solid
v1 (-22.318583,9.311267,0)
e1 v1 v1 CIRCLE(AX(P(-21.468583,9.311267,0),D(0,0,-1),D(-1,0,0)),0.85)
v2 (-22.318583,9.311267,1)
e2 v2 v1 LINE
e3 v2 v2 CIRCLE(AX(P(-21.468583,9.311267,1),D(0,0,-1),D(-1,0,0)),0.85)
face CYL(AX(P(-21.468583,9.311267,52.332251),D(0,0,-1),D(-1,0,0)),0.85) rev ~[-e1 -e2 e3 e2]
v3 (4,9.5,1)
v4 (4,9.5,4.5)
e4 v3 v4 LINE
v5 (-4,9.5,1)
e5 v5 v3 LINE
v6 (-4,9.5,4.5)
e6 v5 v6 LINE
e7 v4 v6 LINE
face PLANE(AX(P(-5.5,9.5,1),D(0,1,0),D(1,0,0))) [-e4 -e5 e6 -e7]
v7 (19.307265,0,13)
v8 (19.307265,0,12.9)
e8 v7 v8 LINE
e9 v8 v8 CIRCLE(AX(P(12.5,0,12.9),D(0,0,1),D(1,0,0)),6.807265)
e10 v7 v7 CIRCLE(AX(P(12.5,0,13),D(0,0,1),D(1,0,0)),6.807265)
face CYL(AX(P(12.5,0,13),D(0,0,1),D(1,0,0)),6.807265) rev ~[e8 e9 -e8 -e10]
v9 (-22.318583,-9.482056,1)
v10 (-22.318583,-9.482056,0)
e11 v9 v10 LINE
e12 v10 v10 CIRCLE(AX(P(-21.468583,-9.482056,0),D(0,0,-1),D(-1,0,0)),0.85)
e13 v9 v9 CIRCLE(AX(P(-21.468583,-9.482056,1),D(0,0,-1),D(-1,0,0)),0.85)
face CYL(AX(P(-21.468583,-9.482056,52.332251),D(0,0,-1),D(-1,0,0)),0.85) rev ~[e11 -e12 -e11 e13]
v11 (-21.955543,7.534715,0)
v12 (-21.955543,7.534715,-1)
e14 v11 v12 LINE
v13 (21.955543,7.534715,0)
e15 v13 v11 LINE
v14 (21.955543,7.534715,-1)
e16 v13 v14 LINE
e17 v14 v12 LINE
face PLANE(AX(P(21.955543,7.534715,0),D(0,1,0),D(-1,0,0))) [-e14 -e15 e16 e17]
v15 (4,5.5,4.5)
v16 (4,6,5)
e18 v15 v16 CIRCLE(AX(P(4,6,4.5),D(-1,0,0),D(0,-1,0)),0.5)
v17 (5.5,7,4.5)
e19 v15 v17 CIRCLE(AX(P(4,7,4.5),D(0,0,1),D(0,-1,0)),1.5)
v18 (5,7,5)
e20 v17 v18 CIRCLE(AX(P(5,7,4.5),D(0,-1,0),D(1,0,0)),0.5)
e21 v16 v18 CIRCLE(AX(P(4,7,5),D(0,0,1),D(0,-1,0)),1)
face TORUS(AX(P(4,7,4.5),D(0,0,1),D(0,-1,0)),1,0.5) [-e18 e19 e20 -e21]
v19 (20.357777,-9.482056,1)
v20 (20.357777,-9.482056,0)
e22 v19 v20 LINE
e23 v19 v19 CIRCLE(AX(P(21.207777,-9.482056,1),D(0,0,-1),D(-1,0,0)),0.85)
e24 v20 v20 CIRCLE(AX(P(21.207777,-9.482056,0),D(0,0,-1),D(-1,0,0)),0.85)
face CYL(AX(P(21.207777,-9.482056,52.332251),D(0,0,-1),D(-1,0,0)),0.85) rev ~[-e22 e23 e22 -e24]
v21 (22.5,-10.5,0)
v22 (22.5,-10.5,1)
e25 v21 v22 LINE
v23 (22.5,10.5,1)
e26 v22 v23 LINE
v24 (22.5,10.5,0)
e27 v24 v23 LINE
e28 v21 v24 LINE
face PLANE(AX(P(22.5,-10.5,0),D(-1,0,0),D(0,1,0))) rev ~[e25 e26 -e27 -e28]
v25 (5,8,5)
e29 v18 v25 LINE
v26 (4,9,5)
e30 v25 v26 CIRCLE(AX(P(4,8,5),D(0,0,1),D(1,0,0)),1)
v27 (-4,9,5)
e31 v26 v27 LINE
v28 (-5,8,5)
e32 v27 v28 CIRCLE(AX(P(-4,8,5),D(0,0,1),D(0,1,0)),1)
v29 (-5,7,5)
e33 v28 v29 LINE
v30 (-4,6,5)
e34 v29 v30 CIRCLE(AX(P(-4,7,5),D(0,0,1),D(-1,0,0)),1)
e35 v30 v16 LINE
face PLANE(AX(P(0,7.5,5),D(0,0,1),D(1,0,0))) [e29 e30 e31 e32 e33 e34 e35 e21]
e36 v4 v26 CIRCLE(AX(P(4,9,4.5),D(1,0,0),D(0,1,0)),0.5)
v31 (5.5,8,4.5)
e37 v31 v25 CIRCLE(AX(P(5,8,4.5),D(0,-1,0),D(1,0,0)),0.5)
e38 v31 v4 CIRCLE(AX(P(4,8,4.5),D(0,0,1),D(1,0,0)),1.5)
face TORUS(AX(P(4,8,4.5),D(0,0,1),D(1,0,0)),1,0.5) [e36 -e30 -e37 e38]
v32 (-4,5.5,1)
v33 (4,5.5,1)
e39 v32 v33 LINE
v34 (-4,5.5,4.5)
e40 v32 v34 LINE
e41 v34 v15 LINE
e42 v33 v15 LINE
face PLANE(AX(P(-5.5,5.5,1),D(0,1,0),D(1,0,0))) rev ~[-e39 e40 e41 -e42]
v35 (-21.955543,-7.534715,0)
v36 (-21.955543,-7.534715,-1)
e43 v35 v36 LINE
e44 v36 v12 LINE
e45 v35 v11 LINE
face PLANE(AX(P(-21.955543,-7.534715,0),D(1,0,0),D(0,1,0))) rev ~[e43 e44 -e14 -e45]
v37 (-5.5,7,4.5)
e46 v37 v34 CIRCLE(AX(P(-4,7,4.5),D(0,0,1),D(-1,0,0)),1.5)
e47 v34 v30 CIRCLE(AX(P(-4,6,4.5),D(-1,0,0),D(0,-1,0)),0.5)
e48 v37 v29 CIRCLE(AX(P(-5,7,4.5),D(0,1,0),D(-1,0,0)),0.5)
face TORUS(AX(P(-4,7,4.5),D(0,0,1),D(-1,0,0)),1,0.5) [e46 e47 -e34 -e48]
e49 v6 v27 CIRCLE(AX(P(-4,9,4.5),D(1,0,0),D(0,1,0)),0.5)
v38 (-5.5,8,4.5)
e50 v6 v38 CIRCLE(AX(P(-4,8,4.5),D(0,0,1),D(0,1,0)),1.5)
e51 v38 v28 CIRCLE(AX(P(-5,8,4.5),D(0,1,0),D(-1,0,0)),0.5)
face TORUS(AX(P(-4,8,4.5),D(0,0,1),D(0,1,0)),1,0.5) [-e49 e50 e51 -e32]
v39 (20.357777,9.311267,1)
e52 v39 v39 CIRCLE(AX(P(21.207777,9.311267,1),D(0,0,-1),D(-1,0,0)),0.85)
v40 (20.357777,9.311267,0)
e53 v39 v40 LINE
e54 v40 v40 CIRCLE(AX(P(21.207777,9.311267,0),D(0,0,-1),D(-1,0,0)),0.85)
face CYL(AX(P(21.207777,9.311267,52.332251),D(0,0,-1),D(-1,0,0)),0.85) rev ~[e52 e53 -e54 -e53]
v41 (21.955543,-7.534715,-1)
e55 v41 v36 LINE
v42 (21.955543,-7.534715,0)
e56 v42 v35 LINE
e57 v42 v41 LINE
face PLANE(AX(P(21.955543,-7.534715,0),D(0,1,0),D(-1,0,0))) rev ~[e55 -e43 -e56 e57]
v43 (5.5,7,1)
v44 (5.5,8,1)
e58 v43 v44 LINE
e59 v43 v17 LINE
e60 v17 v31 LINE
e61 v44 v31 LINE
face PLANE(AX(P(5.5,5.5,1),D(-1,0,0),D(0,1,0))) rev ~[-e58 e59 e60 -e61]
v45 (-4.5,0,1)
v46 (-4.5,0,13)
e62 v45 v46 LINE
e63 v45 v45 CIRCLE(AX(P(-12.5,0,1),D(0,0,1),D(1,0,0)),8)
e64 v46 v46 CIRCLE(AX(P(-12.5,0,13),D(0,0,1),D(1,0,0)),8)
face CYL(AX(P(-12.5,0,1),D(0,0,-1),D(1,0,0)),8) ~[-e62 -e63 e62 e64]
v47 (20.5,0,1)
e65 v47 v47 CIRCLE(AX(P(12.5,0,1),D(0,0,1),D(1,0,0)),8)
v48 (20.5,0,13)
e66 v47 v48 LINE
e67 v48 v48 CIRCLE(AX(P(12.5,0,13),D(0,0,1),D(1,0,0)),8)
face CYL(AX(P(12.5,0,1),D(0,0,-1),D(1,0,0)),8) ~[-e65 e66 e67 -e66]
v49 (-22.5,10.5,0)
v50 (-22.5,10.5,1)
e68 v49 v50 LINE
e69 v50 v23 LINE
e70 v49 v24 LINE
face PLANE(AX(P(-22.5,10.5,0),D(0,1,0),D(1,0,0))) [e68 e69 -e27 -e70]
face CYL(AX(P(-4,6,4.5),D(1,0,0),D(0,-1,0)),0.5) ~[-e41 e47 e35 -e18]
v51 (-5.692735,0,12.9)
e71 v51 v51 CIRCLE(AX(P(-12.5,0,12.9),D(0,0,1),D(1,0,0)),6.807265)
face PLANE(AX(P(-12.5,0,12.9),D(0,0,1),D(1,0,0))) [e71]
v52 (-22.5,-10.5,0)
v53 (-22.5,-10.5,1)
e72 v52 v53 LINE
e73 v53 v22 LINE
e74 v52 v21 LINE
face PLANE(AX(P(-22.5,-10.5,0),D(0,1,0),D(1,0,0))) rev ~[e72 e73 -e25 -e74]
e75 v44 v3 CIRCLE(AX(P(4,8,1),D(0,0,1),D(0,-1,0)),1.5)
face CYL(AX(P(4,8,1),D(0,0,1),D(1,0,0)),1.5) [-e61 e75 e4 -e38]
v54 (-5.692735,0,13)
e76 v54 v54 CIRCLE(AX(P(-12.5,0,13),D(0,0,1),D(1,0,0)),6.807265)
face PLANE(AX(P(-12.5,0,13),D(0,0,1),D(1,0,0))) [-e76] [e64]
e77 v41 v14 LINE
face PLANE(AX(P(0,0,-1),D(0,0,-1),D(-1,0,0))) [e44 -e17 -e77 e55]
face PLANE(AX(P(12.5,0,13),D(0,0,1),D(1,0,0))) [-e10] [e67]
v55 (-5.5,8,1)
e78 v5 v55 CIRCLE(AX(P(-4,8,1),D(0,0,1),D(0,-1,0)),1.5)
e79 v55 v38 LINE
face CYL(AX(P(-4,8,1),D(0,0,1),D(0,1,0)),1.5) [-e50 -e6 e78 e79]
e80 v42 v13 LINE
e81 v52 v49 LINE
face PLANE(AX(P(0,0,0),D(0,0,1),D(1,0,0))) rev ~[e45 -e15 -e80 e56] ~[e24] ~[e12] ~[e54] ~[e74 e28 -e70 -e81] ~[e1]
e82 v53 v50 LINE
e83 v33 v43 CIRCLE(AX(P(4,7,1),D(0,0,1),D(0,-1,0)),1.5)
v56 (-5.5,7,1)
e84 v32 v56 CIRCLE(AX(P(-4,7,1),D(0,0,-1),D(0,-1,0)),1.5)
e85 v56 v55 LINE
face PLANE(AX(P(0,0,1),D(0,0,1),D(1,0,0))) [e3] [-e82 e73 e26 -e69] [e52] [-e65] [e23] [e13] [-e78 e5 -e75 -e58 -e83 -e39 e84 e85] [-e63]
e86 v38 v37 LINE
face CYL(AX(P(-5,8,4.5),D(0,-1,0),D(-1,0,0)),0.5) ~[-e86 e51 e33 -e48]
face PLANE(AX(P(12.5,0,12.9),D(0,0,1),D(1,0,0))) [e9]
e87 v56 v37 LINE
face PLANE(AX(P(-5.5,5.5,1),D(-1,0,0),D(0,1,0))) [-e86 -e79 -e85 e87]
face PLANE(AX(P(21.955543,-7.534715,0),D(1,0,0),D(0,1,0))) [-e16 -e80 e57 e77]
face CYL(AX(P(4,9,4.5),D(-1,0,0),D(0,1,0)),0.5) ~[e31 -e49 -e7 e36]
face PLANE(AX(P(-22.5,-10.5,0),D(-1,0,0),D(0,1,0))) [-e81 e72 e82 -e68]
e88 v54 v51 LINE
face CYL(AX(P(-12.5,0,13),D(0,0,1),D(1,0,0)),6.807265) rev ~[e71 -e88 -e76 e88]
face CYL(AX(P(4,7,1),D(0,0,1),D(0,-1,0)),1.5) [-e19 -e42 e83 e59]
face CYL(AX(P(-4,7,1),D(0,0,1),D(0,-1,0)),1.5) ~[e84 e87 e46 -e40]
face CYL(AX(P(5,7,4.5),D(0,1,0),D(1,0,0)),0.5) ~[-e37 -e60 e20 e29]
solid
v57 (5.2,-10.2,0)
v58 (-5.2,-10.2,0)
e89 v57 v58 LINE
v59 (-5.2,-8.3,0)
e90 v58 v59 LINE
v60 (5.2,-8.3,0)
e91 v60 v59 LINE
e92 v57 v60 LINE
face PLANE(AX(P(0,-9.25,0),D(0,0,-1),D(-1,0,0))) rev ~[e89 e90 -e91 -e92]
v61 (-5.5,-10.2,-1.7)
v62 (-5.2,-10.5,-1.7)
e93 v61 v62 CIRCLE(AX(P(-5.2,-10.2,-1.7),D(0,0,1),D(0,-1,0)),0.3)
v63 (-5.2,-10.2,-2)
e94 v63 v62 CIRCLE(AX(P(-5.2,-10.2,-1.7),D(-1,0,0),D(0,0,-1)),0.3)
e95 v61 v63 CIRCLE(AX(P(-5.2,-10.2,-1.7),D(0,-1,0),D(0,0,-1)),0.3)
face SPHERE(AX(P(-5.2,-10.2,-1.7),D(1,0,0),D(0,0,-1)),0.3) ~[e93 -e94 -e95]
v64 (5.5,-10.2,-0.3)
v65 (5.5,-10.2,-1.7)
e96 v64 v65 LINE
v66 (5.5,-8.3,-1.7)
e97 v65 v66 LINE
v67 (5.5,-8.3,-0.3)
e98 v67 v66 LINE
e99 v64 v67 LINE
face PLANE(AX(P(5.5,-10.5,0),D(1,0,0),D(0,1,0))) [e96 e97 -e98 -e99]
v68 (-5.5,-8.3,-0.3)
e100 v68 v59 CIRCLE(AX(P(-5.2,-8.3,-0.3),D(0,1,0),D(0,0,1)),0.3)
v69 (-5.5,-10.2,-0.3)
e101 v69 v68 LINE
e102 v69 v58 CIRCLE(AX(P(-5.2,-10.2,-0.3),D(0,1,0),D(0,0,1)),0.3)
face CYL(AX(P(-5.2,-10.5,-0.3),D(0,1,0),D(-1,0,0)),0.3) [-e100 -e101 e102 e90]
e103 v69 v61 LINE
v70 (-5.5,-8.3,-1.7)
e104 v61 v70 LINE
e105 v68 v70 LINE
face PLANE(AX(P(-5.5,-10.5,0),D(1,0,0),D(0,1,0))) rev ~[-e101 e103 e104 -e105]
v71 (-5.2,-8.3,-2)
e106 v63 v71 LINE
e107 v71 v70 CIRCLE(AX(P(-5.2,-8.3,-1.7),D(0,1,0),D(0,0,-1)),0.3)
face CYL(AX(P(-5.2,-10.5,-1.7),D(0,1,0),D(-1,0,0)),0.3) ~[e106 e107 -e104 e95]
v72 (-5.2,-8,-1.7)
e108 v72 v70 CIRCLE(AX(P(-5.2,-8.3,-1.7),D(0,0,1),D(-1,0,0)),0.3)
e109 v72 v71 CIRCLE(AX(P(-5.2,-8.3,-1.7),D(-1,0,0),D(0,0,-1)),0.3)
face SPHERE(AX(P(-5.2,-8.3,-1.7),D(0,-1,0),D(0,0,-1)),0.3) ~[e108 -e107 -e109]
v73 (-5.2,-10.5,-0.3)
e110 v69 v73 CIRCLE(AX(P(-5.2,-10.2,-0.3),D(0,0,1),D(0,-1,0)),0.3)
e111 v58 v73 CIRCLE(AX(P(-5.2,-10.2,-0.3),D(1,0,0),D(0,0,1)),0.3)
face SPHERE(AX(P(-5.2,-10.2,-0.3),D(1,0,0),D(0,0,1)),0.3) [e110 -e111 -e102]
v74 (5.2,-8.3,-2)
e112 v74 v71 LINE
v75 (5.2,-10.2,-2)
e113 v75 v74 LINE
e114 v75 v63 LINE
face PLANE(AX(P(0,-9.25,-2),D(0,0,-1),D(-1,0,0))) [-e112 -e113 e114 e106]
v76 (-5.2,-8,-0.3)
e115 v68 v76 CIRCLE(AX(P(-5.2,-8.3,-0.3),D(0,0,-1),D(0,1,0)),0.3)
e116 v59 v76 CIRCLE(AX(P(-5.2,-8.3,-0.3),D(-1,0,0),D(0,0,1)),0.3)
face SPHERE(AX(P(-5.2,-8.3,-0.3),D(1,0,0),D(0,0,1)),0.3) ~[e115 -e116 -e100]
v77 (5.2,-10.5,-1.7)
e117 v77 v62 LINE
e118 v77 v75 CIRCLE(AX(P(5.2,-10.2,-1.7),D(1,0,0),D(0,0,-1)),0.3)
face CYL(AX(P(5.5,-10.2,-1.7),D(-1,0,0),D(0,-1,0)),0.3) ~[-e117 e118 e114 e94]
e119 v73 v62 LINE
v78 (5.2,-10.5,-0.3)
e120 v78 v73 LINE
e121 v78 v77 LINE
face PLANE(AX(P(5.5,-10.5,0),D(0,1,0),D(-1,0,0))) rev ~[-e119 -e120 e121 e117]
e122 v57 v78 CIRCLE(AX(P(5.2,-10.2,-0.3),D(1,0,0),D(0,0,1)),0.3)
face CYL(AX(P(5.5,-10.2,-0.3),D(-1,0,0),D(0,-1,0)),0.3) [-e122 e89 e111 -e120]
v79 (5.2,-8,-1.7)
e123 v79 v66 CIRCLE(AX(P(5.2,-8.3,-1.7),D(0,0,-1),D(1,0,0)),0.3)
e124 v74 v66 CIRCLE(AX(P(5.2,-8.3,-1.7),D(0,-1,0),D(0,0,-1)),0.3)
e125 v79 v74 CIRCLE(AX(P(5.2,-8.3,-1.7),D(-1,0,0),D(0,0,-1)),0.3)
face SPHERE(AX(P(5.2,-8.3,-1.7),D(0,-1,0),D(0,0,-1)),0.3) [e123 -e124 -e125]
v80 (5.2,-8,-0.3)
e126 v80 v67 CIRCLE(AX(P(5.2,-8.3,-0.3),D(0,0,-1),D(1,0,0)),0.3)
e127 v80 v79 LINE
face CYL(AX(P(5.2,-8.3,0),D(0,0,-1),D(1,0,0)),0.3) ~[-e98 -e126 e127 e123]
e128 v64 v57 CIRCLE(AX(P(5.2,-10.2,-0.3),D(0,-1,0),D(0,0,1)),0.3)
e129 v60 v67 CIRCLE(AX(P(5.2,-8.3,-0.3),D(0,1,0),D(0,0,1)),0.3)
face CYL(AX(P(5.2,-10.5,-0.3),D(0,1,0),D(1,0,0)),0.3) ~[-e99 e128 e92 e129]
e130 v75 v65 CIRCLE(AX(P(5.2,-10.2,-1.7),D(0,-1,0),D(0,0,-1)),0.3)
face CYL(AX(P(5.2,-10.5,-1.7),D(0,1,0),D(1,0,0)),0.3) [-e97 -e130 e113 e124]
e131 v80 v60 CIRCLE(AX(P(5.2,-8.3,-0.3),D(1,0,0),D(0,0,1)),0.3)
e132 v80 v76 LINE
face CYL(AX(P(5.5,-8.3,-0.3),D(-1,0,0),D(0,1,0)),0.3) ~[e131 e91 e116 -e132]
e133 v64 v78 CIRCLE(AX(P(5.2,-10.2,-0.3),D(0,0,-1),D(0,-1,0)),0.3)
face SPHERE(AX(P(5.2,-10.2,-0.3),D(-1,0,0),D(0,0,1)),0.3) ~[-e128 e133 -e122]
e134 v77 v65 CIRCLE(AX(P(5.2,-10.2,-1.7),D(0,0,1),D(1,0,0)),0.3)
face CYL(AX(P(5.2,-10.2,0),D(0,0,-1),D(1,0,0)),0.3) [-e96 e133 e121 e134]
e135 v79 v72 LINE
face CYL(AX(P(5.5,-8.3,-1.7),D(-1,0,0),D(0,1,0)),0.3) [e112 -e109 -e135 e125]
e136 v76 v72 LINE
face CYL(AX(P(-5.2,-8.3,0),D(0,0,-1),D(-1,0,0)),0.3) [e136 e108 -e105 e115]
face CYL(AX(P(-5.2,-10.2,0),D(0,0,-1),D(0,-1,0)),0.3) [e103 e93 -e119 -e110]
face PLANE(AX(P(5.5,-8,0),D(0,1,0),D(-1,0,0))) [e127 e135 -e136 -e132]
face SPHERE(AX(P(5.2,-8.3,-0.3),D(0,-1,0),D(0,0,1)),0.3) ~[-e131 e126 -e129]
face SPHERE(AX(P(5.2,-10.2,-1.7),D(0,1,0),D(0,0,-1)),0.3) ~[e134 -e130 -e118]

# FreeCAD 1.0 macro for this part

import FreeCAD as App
import Part
import Sketcher


def edges_at(feature, points):
    """Names of the edges that pass closest to the given points."""
    edges = feature.Shape.Edges
    near = lambda p: min(range(len(edges)), key=lambda i: edges[i].distToShape(Part.Vertex(*p))[0])
    return sorted({f"Edge{near(p) + 1}" for p in points})

doc = App.newDocument("Part")
body = doc.addObject("PartDesign::Body", "Body")

# Sketch on XY plane
sketch1 = body.newObject("Sketcher::SketchObject", "Sketch")
sketch1.AttachmentSupport = (doc.getObject("XY_Plane"), [""])
sketch1.MapMode = "FlatFace"
sketch1.addGeometry([
    Part.LineSegment(App.Vector(-22.5, 10.5, 0), App.Vector(-22.5, -10.5, 0)),
    Part.LineSegment(App.Vector(-22.5, -10.5, 0), App.Vector(22.5, -10.5, 0)),
    Part.LineSegment(App.Vector(22.5, -10.5, 0), App.Vector(22.5, 10.5, 0)),
    Part.LineSegment(App.Vector(22.5, 10.5, 0), App.Vector(-22.5, 10.5, 0)),
], False)
sketch1.addConstraint([
    Sketcher.Constraint("Coincident", 0, 2, 1, 1),
    Sketcher.Constraint("Coincident", 1, 2, 2, 1),
    Sketcher.Constraint("Coincident", 2, 2, 3, 1),
    Sketcher.Constraint("Coincident", 3, 2, 0, 1),
    Sketcher.Constraint("Vertical", 0),
    Sketcher.Constraint("Horizontal", 1),
    Sketcher.Constraint("Vertical", 2),
    Sketcher.Constraint("Horizontal", 3),
    Sketcher.Constraint("Symmetric", 0, 2, 2, 2, -1, 1),
    Sketcher.Constraint("DistanceX", 1, 1, 1, 2, 45.0),
    Sketcher.Constraint("DistanceY", 0, 2, 0, 1, 21.0),
])
pad1 = body.newObject("PartDesign::Pad", "Pad")
pad1.Profile = sketch1
pad1.Length = 1

# Sketch on XY plane
sketch2 = body.newObject("Sketcher::SketchObject", "Sketch001")
sketch2.AttachmentSupport = (doc.getObject("XY_Plane"), [""])
sketch2.MapMode = "FlatFace"
sketch2.AttachmentOffset = App.Placement(App.Vector(0, 0, 1), App.Rotation())
sketch2.addGeometry([
    Part.Circle(App.Vector(-12.5, 0, 0), App.Vector(0, 0, 1), 8),
    Part.Circle(App.Vector(12.5, 0, 0), App.Vector(0, 0, 1), 8),
], False)
sketch2.addConstraint([
    Sketcher.Constraint("Equal", 0, 1),
    Sketcher.Constraint("Symmetric", 0, 3, 1, 3, -1, 1),
    Sketcher.Constraint("PointOnObject", 0, 3, -1),
    Sketcher.Constraint("Diameter", 0, 16.0),
    Sketcher.Constraint("DistanceX", 0, 3, 1, 3, 25.0),
])
pad2 = body.newObject("PartDesign::Pad", "Pad001")
pad2.Profile = sketch2
pad2.Length = 12

# Sketch on XY plane
sketch3 = body.newObject("Sketcher::SketchObject", "Sketch002")
sketch3.AttachmentSupport = (doc.getObject("XY_Plane"), [""])
sketch3.MapMode = "FlatFace"
sketch3.AttachmentOffset = App.Placement(App.Vector(0, 0, 13), App.Rotation())
sketch3.addGeometry([
    Part.Circle(App.Vector(-12.5, 0, 0), App.Vector(0, 0, 1), 6.807265),
    Part.Circle(App.Vector(12.5, 0, 0), App.Vector(0, 0, 1), 6.807265),
], False)
sketch3.addConstraint([
    Sketcher.Constraint("Equal", 0, 1),
    Sketcher.Constraint("Symmetric", 0, 3, 1, 3, -1, 1),
    Sketcher.Constraint("PointOnObject", 0, 3, -1),
    Sketcher.Constraint("DistanceX", 0, 3, 1, 3, 25.0),
    Sketcher.Constraint("Diameter", 0, 13.61453),
])
pocket1 = body.newObject("PartDesign::Pocket", "Pocket")
pocket1.Profile = sketch3
pocket1.Length = 0.1

# Sketch on XY plane
sketch4 = body.newObject("Sketcher::SketchObject", "Sketch003")
sketch4.AttachmentSupport = (doc.getObject("XY_Plane"), [""])
sketch4.MapMode = "FlatFace"
sketch4.AttachmentOffset = App.Placement(App.Vector(0, 0, 1), App.Rotation())
sketch4.addGeometry([
    Part.LineSegment(App.Vector(-5.5, 9.5, 0), App.Vector(-5.5, 5.5, 0)),
    Part.LineSegment(App.Vector(-5.5, 5.5, 0), App.Vector(5.5, 5.5, 0)),
    Part.LineSegment(App.Vector(5.5, 5.5, 0), App.Vector(5.5, 9.5, 0)),
    Part.LineSegment(App.Vector(5.5, 9.5, 0), App.Vector(-5.5, 9.5, 0)),
], False)
sketch4.addConstraint([
    Sketcher.Constraint("Coincident", 0, 2, 1, 1),
    Sketcher.Constraint("Coincident", 1, 2, 2, 1),
    Sketcher.Constraint("Coincident", 2, 2, 3, 1),
    Sketcher.Constraint("Coincident", 3, 2, 0, 1),
    Sketcher.Constraint("Vertical", 0),
    Sketcher.Constraint("Horizontal", 1),
    Sketcher.Constraint("Vertical", 2),
    Sketcher.Constraint("Horizontal", 3),
    Sketcher.Constraint("DistanceX", 1, 1, 1, 2, 11.0),
    Sketcher.Constraint("DistanceY", 0, 2, 0, 1, 4.0),
    Sketcher.Constraint("DistanceX", 0, 2, -1, 1, 5.5),
    Sketcher.Constraint("DistanceY", -1, 1, 0, 2, 5.5),
])
pad3 = body.newObject("PartDesign::Pad", "Pad002")
pad3.Profile = sketch4
pad3.Length = 4
doc.recompute()

fillet = body.newObject("PartDesign::Fillet", "Fillet")
fillet.Base = (pad3, edges_at(pad3, [
    (-5.5, 9.5, 3),
    (-5.5, 5.5, 3),
    (5.5, 5.5, 3),
    (5.5, 9.5, 3),
]))
fillet.Radius = 1.5
doc.recompute()

fillet2 = body.newObject("PartDesign::Fillet", "Fillet001")
fillet2.Base = (fillet, edges_at(fillet, [
    (0, 5.5, 5),
    (-5.5, 7.5, 5),
    (5.5, 7.5, 5),
    (0, 9.5, 5),
    (5.061, 9.061, 5),
    (5.061, 5.939, 5),
    (-5.061, 9.061, 5),
    (-5.061, 5.939, 5),
]))
fillet2.Radius = 0.5

# Sketch on XY plane
sketch5 = body.newObject("Sketcher::SketchObject", "Sketch004")
sketch5.AttachmentSupport = (doc.getObject("XY_Plane"), [""])
sketch5.MapMode = "FlatFace"
sketch5.AttachmentOffset = App.Placement(App.Vector(0, 0, 1), App.Rotation())
sketch5.addGeometry([
    Part.Circle(App.Vector(-21.468583, 9.311267, 0), App.Vector(0, 0, 1), 0.85),
    Part.Circle(App.Vector(-21.468583, -9.482056, 0), App.Vector(0, 0, 1), 0.85),
    Part.Circle(App.Vector(21.207777, -9.482056, 0), App.Vector(0, 0, 1), 0.85),
    Part.Circle(App.Vector(21.207777, 9.311267, 0), App.Vector(0, 0, 1), 0.85),
], False)
sketch5.addConstraint([
    Sketcher.Constraint("Equal", 0, 1),
    Sketcher.Constraint("Equal", 1, 2),
    Sketcher.Constraint("Equal", 2, 3),
    Sketcher.Constraint("Horizontal", 1, 3, 2, 3),
    Sketcher.Constraint("Horizontal", 0, 3, 3, 3),
    Sketcher.Constraint("Vertical", 0, 3, 1, 3),
    Sketcher.Constraint("Vertical", 2, 3, 3, 3),
    Sketcher.Constraint("Diameter", 0, 1.7),
    Sketcher.Constraint("DistanceX", 1, 3, 2, 3, 42.67636),
    Sketcher.Constraint("DistanceX", 0, 3, -1, 1, 21.468583),
    Sketcher.Constraint("DistanceY", -1, 1, 0, 3, 9.311267),
    Sketcher.Constraint("DistanceY", 1, 3, -1, 1, 9.482056),
])
doc.recompute()
hole = body.newObject("PartDesign::Hole", "Hole")
hole.Profile = sketch5
hole.ThreadType = "None"
hole.Diameter = 1.7
hole.DepthType = "ThroughAll"

# Sketch on XY plane
sketch6 = body.newObject("Sketcher::SketchObject", "Sketch005")
sketch6.AttachmentSupport = (doc.getObject("XY_Plane"), [""])
sketch6.MapMode = "FlatFace"
sketch6.addGeometry([
    Part.LineSegment(App.Vector(21.955543, 7.534715, 0), App.Vector(21.955543, -7.534715, 0)),
    Part.LineSegment(App.Vector(21.955543, -7.534715, 0), App.Vector(-21.955543, -7.534715, 0)),
    Part.LineSegment(App.Vector(-21.955543, -7.534715, 0), App.Vector(-21.955543, 7.534715, 0)),
    Part.LineSegment(App.Vector(-21.955543, 7.534715, 0), App.Vector(21.955543, 7.534715, 0)),
], False)
sketch6.addConstraint([
    Sketcher.Constraint("Coincident", 0, 2, 1, 1),
    Sketcher.Constraint("Coincident", 1, 2, 2, 1),
    Sketcher.Constraint("Coincident", 2, 2, 3, 1),
    Sketcher.Constraint("Coincident", 3, 2, 0, 1),
    Sketcher.Constraint("Vertical", 0),
    Sketcher.Constraint("Horizontal", 1),
    Sketcher.Constraint("Vertical", 2),
    Sketcher.Constraint("Horizontal", 3),
    Sketcher.Constraint("Symmetric", 0, 2, 2, 2, -1, 1),
    Sketcher.Constraint("DistanceY", 0, 2, 0, 1, 15.069429),
    Sketcher.Constraint("DistanceX", 1, 2, 1, 1, 43.911087),
])
pad4 = body.newObject("PartDesign::Pad", "Pad003")
pad4.Profile = sketch6
pad4.Length = 1
pad4.Reversed = True
body2 = doc.addObject("PartDesign::Body", "Body001")

# Sketch on XY plane
sketch7 = body2.newObject("Sketcher::SketchObject", "Sketch006")
sketch7.AttachmentSupport = (doc.getObject("XY_Plane001"), [""])
sketch7.MapMode = "FlatFace"
sketch7.addGeometry([
    Part.LineSegment(App.Vector(5.5, -8, 0), App.Vector(5.5, -10.5, 0)),
    Part.LineSegment(App.Vector(5.5, -10.5, 0), App.Vector(-5.5, -10.5, 0)),
    Part.LineSegment(App.Vector(-5.5, -10.5, 0), App.Vector(-5.5, -8, 0)),
    Part.LineSegment(App.Vector(-5.5, -8, 0), App.Vector(5.5, -8, 0)),
], False)
sketch7.addConstraint([
    Sketcher.Constraint("Coincident", 0, 2, 1, 1),
    Sketcher.Constraint("Coincident", 1, 2, 2, 1),
    Sketcher.Constraint("Coincident", 2, 2, 3, 1),
    Sketcher.Constraint("Coincident", 3, 2, 0, 1),
    Sketcher.Constraint("Vertical", 0),
    Sketcher.Constraint("Horizontal", 1),
    Sketcher.Constraint("Vertical", 2),
    Sketcher.Constraint("Horizontal", 3),
    Sketcher.Constraint("DistanceX", 1, 2, 1, 1, 11.0),
    Sketcher.Constraint("DistanceY", 0, 2, 0, 1, 2.5),
    Sketcher.Constraint("DistanceY", 2, 2, -1, 1, 8.0),
    Sketcher.Constraint("DistanceX", -1, 1, 0, 2, 5.5),
])
pad5 = body2.newObject("PartDesign::Pad", "Pad004")
pad5.Profile = sketch7
pad5.Length = 2
pad5.Reversed = True
doc.recompute()

fillet3 = body2.newObject("PartDesign::Fillet", "Fillet002")
fillet3.Base = (pad5, ["Edge1"])
fillet3.UseAllEdges = True
fillet3.Radius = 0.3

doc.recompute()
